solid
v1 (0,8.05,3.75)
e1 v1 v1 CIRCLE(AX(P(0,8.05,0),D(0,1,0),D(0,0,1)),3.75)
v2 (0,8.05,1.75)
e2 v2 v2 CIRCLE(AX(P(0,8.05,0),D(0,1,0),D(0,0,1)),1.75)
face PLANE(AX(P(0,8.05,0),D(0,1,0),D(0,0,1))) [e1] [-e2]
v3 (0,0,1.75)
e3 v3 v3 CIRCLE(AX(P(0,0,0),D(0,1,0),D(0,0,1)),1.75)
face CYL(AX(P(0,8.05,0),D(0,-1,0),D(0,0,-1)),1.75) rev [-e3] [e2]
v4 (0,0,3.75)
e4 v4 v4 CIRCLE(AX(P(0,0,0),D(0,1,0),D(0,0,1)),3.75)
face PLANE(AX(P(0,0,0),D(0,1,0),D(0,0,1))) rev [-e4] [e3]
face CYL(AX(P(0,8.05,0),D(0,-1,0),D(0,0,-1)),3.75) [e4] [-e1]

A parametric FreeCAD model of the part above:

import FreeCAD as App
import Part
import Sketcher

doc = App.newDocument("Part")
params = doc.addObject("Spreadsheet::Sheet", "Params")
for row, (alias, value) in enumerate([
    ("sketch1_diameter", "7.5 mm"),
    ("sketch1_diameter2", "3.5 mm"),
    ("pad1_length", "8.05 mm"),
], start=1):
    params.set(f"A{row}", alias)
    params.set(f"B{row}", "=" + value)
    params.setAlias(f"B{row}", alias)

body = doc.addObject("PartDesign::Body", "Body")

# Sketch on XZ plane
sketch1 = body.newObject("Sketcher::SketchObject", "Sketch")
sketch1.AttachmentSupport = (doc.getObject("XZ_Plane"), [""])
sketch1.MapMode = "FlatFace"
sketch1.addGeometry([
    Part.Circle(App.Vector(0, 0, 0), App.Vector(0, 0, 1), 3.8),
    Part.Circle(App.Vector(0, 0, 0), App.Vector(0, 0, 1), 1.8),
], False)
sketch1.addConstraint([
    Sketcher.Constraint("Coincident", 0, 3, -1, 1),
    Sketcher.Constraint("Coincident", 1, 3, -1, 1),
    Sketcher.Constraint("Diameter", 0, 7.5),
    Sketcher.Constraint("Diameter", 1, 3.5),
])
sketch1.setExpression("Constraints[2]", "Params.sketch1_diameter")
sketch1.setExpression("Constraints[3]", "Params.sketch1_diameter2")
pad1 = body.newObject("PartDesign::Pad", "Pad")
pad1.Profile = sketch1
pad1.setExpression("Length", "Params.pad1_length")
pad1.Reversed = True

doc.recompute()
